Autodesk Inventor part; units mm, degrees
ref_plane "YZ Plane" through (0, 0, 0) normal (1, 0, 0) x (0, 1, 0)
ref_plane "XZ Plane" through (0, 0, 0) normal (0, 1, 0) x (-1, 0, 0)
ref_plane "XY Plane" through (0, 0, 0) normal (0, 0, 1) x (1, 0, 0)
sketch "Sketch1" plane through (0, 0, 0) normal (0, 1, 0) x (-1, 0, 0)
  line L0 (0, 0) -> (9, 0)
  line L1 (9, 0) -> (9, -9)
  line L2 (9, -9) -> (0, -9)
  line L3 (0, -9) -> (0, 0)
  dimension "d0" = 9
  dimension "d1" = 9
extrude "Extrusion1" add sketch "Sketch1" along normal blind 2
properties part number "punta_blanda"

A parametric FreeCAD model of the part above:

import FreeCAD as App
import Part
import Sketcher
from FreeCAD import Vector
Q = App.Units.Quantity

doc = App.newDocument("Part")
params = doc.addObject("Spreadsheet::Sheet", "Params")
for row, (alias, value) in enumerate([
    ("sketch1_width", "9 mm"),
    ("pad1_length", "2 mm"),
], start=1):
    params.set(f"A{row}", alias)
    params.set(f"B{row}", "=" + value)
    params.setAlias(f"B{row}", alias)

body = doc.addObject("PartDesign::Body", "Body")

sketch1 = doc.addObject("Sketcher::SketchObject", "Sketch")
body.addObject(sketch1)
sketch1.AttachmentSupport = (doc.XZ_Plane, [""])
sketch1.MapMode = "FlatFace"
sketch1.addGeometry(Part.LineSegment(Vector(-9, 0, 0), Vector(0, 0, 0)), False)
sketch1.addGeometry(Part.LineSegment(Vector(0, 0, 0), Vector(0, -9, 0)), False)
sketch1.addGeometry(Part.LineSegment(Vector(0, -9, 0), Vector(-9, -9, 0)), False)
sketch1.addGeometry(Part.LineSegment(Vector(-9, -9, 0), Vector(-9, 0, 0)), False)
sketch1.addConstraint(Sketcher.Constraint("Coincident", 0, 2, 1, 1))
sketch1.addConstraint(Sketcher.Constraint("Coincident", 1, 2, 2, 1))
sketch1.addConstraint(Sketcher.Constraint("Coincident", 2, 2, 3, 1))
sketch1.addConstraint(Sketcher.Constraint("Coincident", 3, 2, 0, 1))
sketch1.addConstraint(Sketcher.Constraint("Horizontal", 0))
sketch1.addConstraint(Sketcher.Constraint("Vertical", 1))
sketch1.addConstraint(Sketcher.Constraint("Horizontal", 2))
sketch1.addConstraint(Sketcher.Constraint("Vertical", 3))
sketch1.addConstraint(Sketcher.Constraint("Coincident", 0, 2, -1, 1))
sketch1.addConstraint(Sketcher.Constraint("Equal", 2, 1))
sketch1.addConstraint(Sketcher.Constraint("DistanceX", 0, 1, 0, 2, Q("9 mm")))
sketch1.setExpression("Constraints[10]", "Params.sketch1_width")
pad1 = doc.addObject("PartDesign::Pad", "Pad")
body.addObject(pad1)
pad1.Profile = sketch1
pad1.setExpression("Length", "Params.pad1_length")
pad1.Reversed = True

doc.recompute()
